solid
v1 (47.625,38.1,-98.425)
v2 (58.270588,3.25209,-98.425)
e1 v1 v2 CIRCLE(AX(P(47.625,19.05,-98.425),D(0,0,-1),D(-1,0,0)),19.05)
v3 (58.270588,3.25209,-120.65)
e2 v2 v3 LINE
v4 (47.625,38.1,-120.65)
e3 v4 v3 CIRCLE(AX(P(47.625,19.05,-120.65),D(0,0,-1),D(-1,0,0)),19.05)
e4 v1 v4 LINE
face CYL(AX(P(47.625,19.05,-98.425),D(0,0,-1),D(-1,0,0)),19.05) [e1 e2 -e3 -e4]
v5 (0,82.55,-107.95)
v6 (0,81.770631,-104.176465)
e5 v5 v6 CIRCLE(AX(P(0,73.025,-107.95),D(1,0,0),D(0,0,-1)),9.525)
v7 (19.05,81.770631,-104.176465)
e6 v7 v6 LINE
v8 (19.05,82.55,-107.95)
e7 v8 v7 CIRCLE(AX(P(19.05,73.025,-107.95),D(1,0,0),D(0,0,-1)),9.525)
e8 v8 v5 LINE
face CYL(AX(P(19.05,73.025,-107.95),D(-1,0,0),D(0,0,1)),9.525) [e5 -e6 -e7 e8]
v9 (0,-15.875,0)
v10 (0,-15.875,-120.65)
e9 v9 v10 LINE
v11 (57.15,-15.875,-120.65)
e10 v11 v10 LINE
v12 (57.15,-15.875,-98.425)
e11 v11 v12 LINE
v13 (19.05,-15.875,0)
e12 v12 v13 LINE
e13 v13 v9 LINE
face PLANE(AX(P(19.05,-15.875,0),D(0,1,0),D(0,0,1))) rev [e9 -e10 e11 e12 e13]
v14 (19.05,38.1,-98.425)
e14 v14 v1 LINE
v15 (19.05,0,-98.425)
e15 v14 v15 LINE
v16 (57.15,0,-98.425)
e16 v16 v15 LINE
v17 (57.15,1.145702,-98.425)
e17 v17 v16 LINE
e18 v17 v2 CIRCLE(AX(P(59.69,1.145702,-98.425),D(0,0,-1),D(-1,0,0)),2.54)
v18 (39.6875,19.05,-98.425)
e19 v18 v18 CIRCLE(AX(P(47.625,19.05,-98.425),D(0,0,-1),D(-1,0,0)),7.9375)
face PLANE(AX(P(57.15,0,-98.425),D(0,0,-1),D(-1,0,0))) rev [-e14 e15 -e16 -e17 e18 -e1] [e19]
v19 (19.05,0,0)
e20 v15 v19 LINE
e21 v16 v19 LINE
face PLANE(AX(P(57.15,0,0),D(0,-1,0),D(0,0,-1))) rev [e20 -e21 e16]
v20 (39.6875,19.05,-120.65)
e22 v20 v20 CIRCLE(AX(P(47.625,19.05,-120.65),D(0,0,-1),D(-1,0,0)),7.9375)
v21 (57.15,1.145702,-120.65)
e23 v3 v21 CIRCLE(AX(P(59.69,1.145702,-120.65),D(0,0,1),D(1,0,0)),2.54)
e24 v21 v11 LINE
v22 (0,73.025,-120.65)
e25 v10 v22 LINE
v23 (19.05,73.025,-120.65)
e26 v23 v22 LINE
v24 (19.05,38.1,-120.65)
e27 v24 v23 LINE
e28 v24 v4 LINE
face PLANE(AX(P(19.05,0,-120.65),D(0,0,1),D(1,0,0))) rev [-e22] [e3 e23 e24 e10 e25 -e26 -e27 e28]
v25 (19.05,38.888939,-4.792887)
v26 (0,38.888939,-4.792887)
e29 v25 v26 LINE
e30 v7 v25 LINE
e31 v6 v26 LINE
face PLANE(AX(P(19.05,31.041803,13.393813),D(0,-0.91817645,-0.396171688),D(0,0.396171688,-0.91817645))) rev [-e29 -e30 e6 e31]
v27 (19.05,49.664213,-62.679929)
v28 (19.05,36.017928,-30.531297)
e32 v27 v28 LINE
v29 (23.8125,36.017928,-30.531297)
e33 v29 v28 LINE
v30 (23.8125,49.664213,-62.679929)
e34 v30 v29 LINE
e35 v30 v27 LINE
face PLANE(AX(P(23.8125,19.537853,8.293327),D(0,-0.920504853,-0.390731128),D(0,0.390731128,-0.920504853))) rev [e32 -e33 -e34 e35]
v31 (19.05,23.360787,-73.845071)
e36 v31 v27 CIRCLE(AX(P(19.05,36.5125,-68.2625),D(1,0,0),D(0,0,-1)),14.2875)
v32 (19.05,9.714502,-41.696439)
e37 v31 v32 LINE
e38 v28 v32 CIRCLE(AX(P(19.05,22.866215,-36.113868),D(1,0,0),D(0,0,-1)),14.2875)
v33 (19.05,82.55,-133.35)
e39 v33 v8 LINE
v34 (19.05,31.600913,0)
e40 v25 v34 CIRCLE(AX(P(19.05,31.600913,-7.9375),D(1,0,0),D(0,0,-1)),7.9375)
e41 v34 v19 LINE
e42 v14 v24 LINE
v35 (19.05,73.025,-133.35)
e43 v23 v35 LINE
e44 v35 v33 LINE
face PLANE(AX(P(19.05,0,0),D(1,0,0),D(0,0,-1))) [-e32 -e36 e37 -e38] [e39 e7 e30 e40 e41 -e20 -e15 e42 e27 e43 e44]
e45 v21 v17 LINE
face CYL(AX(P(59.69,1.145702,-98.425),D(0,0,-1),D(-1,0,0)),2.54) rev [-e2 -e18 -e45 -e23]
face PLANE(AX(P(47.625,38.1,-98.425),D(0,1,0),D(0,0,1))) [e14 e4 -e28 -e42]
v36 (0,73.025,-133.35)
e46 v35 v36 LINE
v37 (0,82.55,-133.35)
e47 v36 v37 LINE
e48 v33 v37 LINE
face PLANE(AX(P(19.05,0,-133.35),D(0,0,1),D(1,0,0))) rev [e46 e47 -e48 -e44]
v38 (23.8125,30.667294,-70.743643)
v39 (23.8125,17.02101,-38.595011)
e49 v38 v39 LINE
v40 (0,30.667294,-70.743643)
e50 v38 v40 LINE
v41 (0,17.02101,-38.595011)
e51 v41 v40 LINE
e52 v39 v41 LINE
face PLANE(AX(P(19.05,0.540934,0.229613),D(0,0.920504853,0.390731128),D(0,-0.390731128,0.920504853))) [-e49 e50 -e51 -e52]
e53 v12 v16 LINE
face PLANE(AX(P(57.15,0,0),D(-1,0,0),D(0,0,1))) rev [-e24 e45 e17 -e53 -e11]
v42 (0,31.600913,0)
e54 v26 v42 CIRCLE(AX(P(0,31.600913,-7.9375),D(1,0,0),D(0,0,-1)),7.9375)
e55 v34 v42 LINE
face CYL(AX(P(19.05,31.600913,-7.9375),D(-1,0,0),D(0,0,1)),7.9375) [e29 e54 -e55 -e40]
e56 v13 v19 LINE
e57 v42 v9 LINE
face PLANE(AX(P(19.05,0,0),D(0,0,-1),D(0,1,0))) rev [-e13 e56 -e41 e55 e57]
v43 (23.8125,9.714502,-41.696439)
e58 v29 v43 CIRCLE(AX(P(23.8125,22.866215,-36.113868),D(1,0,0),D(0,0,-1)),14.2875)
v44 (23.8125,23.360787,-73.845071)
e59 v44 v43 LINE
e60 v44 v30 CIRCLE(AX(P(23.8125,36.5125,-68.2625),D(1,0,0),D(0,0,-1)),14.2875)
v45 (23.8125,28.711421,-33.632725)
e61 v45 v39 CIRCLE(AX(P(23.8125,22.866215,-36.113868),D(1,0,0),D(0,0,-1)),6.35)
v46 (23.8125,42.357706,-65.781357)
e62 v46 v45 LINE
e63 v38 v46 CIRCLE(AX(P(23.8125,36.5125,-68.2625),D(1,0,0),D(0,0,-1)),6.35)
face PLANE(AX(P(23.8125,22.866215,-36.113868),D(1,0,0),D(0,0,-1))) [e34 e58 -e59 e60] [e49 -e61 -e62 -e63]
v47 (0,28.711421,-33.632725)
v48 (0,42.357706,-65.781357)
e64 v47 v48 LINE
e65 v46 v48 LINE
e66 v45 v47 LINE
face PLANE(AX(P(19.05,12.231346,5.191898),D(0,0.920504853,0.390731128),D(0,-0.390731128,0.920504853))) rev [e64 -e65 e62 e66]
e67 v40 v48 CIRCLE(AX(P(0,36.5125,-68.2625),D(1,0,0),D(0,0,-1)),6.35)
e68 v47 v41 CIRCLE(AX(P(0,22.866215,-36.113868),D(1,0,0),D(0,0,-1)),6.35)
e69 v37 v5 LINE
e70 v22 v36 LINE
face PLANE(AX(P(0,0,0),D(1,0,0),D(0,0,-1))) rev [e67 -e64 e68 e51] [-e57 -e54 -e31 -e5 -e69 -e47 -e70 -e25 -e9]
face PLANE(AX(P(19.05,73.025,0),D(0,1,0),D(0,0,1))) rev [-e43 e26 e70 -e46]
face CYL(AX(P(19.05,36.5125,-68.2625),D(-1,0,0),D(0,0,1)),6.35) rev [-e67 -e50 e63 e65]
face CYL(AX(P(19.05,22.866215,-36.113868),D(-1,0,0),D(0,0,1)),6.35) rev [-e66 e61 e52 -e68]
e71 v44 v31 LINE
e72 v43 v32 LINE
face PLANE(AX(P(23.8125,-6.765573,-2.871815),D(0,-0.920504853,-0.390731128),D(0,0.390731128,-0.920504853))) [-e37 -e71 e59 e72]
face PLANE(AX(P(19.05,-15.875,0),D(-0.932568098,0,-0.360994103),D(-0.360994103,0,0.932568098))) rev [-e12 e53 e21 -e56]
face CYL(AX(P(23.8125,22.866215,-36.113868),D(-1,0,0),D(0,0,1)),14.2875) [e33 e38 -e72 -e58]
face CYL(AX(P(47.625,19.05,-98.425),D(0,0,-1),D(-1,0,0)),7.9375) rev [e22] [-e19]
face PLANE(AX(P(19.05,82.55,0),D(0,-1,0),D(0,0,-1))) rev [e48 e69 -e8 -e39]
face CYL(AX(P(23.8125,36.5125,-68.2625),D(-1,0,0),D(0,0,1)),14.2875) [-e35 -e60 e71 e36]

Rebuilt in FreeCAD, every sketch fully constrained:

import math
import FreeCAD as App
import Part
import Sketcher
from FreeCAD import Vector
Q = App.Units.Quantity


def edges_at(feature, points):
    """Names of the edges that pass closest to the given points."""
    edges = feature.Shape.Edges
    near = lambda p: min(range(len(edges)), key=lambda i: edges[i].distToShape(Part.Vertex(*p))[0])
    return sorted({f"Edge{near(p) + 1}" for p in points})

doc = App.newDocument("Part")
params = doc.addObject("Spreadsheet::Sheet", "Params")
for row, (alias, value) in enumerate([
    ("sketch1_height", "1 in"),
    ("sketch1_radius", "0.25 in"),
    ("sketch1_width", "3.5 in"),
    ("sketch1_height2", "0.5 in"),
    ("sketch1_radius2", "0.375 in"),
    ("pad1_length", "0.75 in"),
    ("sketch2_radius", "0.25 in"),
    ("sketch2_radius2", "0.5625 in"),
    ("sketch2_length", "1.375 in"),
    ("pad2_length", "0.1875 in"),
    ("sketch3_width", "0.25 in"),
    ("sketch3_height", "4.75 in"),
    ("sketch3_width2", "0.625 in"),
    ("pad3_length", "1.5 in"),
    ("sketch4_width", "1.5 in"),
    ("sketch4_height", "3.875 in"),
    ("sketch5_radius", "0.75 in"),
    ("sketch5_diameter", "0.625 in"),
    ("sketch5_width", "1.125 in"),
    ("pad4_length", "0.875 in"),
    ("fillet_radius", "0.1 in"),
], start=1):
    params.set(f"A{row}", alias)
    params.set(f"B{row}", "=" + value)
    params.setAlias(f"B{row}", alias)

body = doc.addObject("PartDesign::Body", "Body")

# Sketch on YZ plane
sketch1 = body.newObject("Sketcher::SketchObject", "Sketch")
sketch1.AttachmentSupport = (doc.getObject("YZ_Plane"), [""])
sketch1.MapMode = "FlatFace"
sketch1.addGeometry(Part.LineSegment(Vector(31.6, 0, 0), Vector(-15.9, 0, 0)), False)
sketch1.addGeometry(Part.LineSegment(Vector(-15.9, 0, 0), Vector(-15.9, -120.7, 0)), False)
sketch1.addGeometry(Part.LineSegment(Vector(-15.9, -120.7, 0), Vector(73, -120.7, 0)), False)
sketch1.addGeometry(Part.LineSegment(Vector(73, -120.7, 0), Vector(73, -133.3, 0)), False)
sketch1.addGeometry(Part.LineSegment(Vector(73, -133.3, 0), Vector(82.5, -133.3, 0)), False)
sketch1.addGeometry(Part.LineSegment(Vector(82.5, -133.3, 0), Vector(82.5, -108, 0)), False)
sketch1.addGeometry(Part.ArcOfCircle(Part.Circle(Vector(73, -108, 0), Vector(0, 0, 1), 9.5), math.radians(0), math.radians(23)), False)
sketch1.addGeometry(Part.LineSegment(Vector(81.8, -104.2, 0), Vector(38.9, -4.8, 0)), False)
sketch1.addGeometry(Part.ArcOfCircle(Part.Circle(Vector(31.6, -7.9, 0), Vector(0, 0, 1), 7.9), math.radians(23), math.radians(90)), False)
sketch1.addGeometry(Part.LineSegment(Vector(30.7, -70.7, 0), Vector(17, -38.6, 0)), False)
sketch1.addGeometry(Part.ArcOfCircle(Part.Circle(Vector(22.9, -36.1, 0), Vector(0, 0, 1), 6.3), math.radians(23), math.radians(203)), False)
sketch1.addGeometry(Part.LineSegment(Vector(28.7, -33.6, 0), Vector(42.4, -65.8, 0)), False)
sketch1.addGeometry(Part.ArcOfCircle(Part.Circle(Vector(36.5, -68.3, 0), Vector(0, 0, 1), 6.3), math.radians(-157), math.radians(23)), False)
sketch1.addConstraint(Sketcher.Constraint("Coincident", 0, 2, 1, 1))
sketch1.addConstraint(Sketcher.Constraint("Coincident", 1, 2, 2, 1))
sketch1.addConstraint(Sketcher.Constraint("Coincident", 2, 2, 3, 1))
sketch1.addConstraint(Sketcher.Constraint("Coincident", 3, 2, 4, 1))
sketch1.addConstraint(Sketcher.Constraint("Coincident", 4, 2, 5, 1))
sketch1.addConstraint(Sketcher.Constraint("Tangent", 5, 2, 6, 1))
sketch1.addConstraint(Sketcher.Constraint("Tangent", 6, 2, 7, 1))
sketch1.addConstraint(Sketcher.Constraint("Tangent", 7, 2, 8, 1))
sketch1.addConstraint(Sketcher.Constraint("Tangent", 8, 2, 0, 1))
sketch1.addConstraint(Sketcher.Constraint("Tangent", 9, 2, 10, 2))
sketch1.addConstraint(Sketcher.Constraint("Tangent", 10, 1, 11, 1))
sketch1.addConstraint(Sketcher.Constraint("Tangent", 11, 2, 12, 2))
sketch1.addConstraint(Sketcher.Constraint("Tangent", 12, 1, 9, 1))
sketch1.addConstraint(Sketcher.Constraint("Horizontal", 0))
sketch1.addConstraint(Sketcher.Constraint("Vertical", 1))
sketch1.addConstraint(Sketcher.Constraint("Horizontal", 2))
sketch1.addConstraint(Sketcher.Constraint("Vertical", 3))
sketch1.addConstraint(Sketcher.Constraint("Horizontal", 4))
sketch1.addConstraint(Sketcher.Constraint("Vertical", 5))
sketch1.addConstraint(Sketcher.Constraint("Equal", 10, 12))
sketch1.addConstraint(Sketcher.Constraint("PointOnObject", 0, 2, -1))
sketch1.addConstraint(Sketcher.Constraint("Vertical", 6, 3, 2, 2))
sketch1.addConstraint(Sketcher.Constraint("DistanceY", 5, 1, 5, 2, Q("1 in")))
sketch1.addConstraint(Sketcher.Constraint("Radius", 10, Q("0.25 in")))
sketch1.addConstraint(Sketcher.Constraint("DistanceX", 2, 1, 2, 2, Q("3.5 in")))
sketch1.addConstraint(Sketcher.Constraint("DistanceY", 3, 2, 3, 1, Q("0.5 in")))
sketch1.addConstraint(Sketcher.Constraint("Angle", 9, Q("113 deg")))
sketch1.addConstraint(Sketcher.Constraint("Radius", 6, Q("0.375 in")))
sketch1.addConstraint(Sketcher.Constraint("Radius", 8, Q("0.3125 in")))
sketch1.addConstraint(Sketcher.Constraint("DistanceY", 1, 2, 1, 1, Q("4.75 in")))
sketch1.addConstraint(Sketcher.Constraint("DistanceX", -1, 1, 4, 2, Q("3.25 in")))
sketch1.addConstraint(Sketcher.Constraint("Distance", 9, Q("1.375 in")))
sketch1.addConstraint(Sketcher.Constraint("DistanceX", -1, 1, 12, 3, Q("1.4375 in")))
sketch1.addConstraint(Sketcher.Constraint("DistanceY", 12, 3, -1, 1, Q("2.6875 in")))
sketch1.addConstraint(Sketcher.Constraint("DistanceX", 0, 2, 0, 1, 47.475913))
sketch1.setExpression("Constraints[22]", "Params.sketch1_height")
sketch1.setExpression("Constraints[23]", "Params.sketch1_radius")
sketch1.setExpression("Constraints[24]", "Params.sketch1_width")
sketch1.setExpression("Constraints[25]", "Params.sketch1_height2")
sketch1.setExpression("Constraints[27]", "Params.sketch1_radius2")
pad1 = body.newObject("PartDesign::Pad", "Pad")
pad1.Profile = sketch1
pad1.setExpression("Length", "Params.pad1_length")

# Sketch on YZ plane
sketch2 = body.newObject("Sketcher::SketchObject", "Sketch001")
sketch2.AttachmentSupport = (doc.getObject("YZ_Plane"), [""])
sketch2.MapMode = "FlatFace"
sketch2.AttachmentOffset = App.Placement(Vector(0, 0, 0.75 * 25.4), App.Rotation())
sketch2.addGeometry(Part.LineSegment(Vector(10, -42, 0), Vector(23, -74, 0)), False)
sketch2.addGeometry(Part.ArcOfCircle(Part.Circle(Vector(37, -68, 0), Vector(0, 0, 1), 14), math.radians(-157), math.radians(23)), False)
sketch2.addGeometry(Part.LineSegment(Vector(50, -63, 0), Vector(36, -31, 0)), False)
sketch2.addGeometry(Part.ArcOfCircle(Part.Circle(Vector(23, -36, 0), Vector(0, 0, 1), 14), math.radians(23), math.radians(203)), False)
sketch2.addGeometry(Part.ArcOfCircle(Part.Circle(Vector(23, -36, 0), Vector(0, 0, 1), 6), math.radians(23), math.radians(203)), False)
sketch2.addGeometry(Part.LineSegment(Vector(29, -34, 0), Vector(42, -66, 0)), False)
sketch2.addGeometry(Part.ArcOfCircle(Part.Circle(Vector(37, -68, 0), Vector(0, 0, 1), 6), math.radians(-157), math.radians(23)), False)
sketch2.addGeometry(Part.LineSegment(Vector(31, -71, 0), Vector(17, -39, 0)), False)
sketch2.addConstraint(Sketcher.Constraint("Tangent", 0, 2, 1, 1))
sketch2.addConstraint(Sketcher.Constraint("Tangent", 1, 2, 2, 1))
sketch2.addConstraint(Sketcher.Constraint("Tangent", 2, 2, 3, 1))
sketch2.addConstraint(Sketcher.Constraint("Tangent", 3, 2, 0, 1))
sketch2.addConstraint(Sketcher.Constraint("Tangent", 4, 1, 5, 1))
sketch2.addConstraint(Sketcher.Constraint("Tangent", 5, 2, 6, 2))
sketch2.addConstraint(Sketcher.Constraint("Tangent", 6, 1, 7, 1))
sketch2.addConstraint(Sketcher.Constraint("Tangent", 7, 2, 4, 2))
sketch2.addConstraint(Sketcher.Constraint("Coincident", 4, 3, 3, 3))
sketch2.addConstraint(Sketcher.Constraint("Coincident", 6, 3, 1, 3))
sketch2.addConstraint(Sketcher.Constraint("Equal", 1, 3))
sketch2.addConstraint(Sketcher.Constraint("Equal", 4, 6))
sketch2.addConstraint(Sketcher.Constraint("Radius", 4, Q("0.25 in")))
sketch2.addConstraint(Sketcher.Constraint("Angle", 0, Q("-67 deg")))
sketch2.addConstraint(Sketcher.Constraint("Radius", 1, Q("0.5625 in")))
sketch2.addConstraint(Sketcher.Constraint("Distance", 0, Q("1.375 in")))
sketch2.addConstraint(Sketcher.Constraint("DistanceX", -1, 1, 1, 3, Q("1.4375 in")))
sketch2.addConstraint(Sketcher.Constraint("DistanceY", 1, 3, -1, 1, Q("2.6875 in")))
sketch2.setExpression("Constraints[12]", "Params.sketch2_radius")
sketch2.setExpression("Constraints[14]", "Params.sketch2_radius2")
sketch2.setExpression("Constraints[15]", "Params.sketch2_length")
pad2 = body.newObject("PartDesign::Pad", "Pad001")
pad2.Profile = sketch2
pad2.setExpression("Length", "Params.pad2_length")

# Sketch on YZ plane
sketch3 = body.newObject("Sketcher::SketchObject", "Sketch002")
sketch3.AttachmentSupport = (doc.getObject("YZ_Plane"), [""])
sketch3.MapMode = "FlatFace"
sketch3.AttachmentOffset = App.Placement(Vector(0, 0, 0.75 * 25.4), App.Rotation())
sketch3.addGeometry(Part.LineSegment(Vector(0, -98, 0), Vector(0, 0, 0)), False)
sketch3.addGeometry(Part.LineSegment(Vector(0, 0, 0), Vector(-16, 0, 0)), False)
sketch3.addGeometry(Part.LineSegment(Vector(-16, 0, 0), Vector(-16, -121, 0)), False)
sketch3.addGeometry(Part.LineSegment(Vector(-16, -121, 0), Vector(6, -121, 0)), False)
sketch3.addGeometry(Part.LineSegment(Vector(6, -121, 0), Vector(6, -98, 0)), False)
sketch3.addGeometry(Part.LineSegment(Vector(6, -98, 0), Vector(0, -98, 0)), False)
sketch3.addConstraint(Sketcher.Constraint("Coincident", 0, 2, 1, 1))
sketch3.addConstraint(Sketcher.Constraint("Coincident", 1, 2, 2, 1))
sketch3.addConstraint(Sketcher.Constraint("Coincident", 2, 2, 3, 1))
sketch3.addConstraint(Sketcher.Constraint("Coincident", 3, 2, 4, 1))
sketch3.addConstraint(Sketcher.Constraint("Coincident", 4, 2, 5, 1))
sketch3.addConstraint(Sketcher.Constraint("Coincident", 5, 2, 0, 1))
sketch3.addConstraint(Sketcher.Constraint("Vertical", 0))
sketch3.addConstraint(Sketcher.Constraint("Horizontal", 1))
sketch3.addConstraint(Sketcher.Constraint("Vertical", 2))
sketch3.addConstraint(Sketcher.Constraint("Horizontal", 3))
sketch3.addConstraint(Sketcher.Constraint("Vertical", 4))
sketch3.addConstraint(Sketcher.Constraint("Horizontal", 5))
sketch3.addConstraint(Sketcher.Constraint("Coincident", 0, 2, -1, 1))
sketch3.addConstraint(Sketcher.Constraint("Equal", 3, 4))
sketch3.addConstraint(Sketcher.Constraint("DistanceX", 5, 2, 5, 1, Q("0.25 in")))
sketch3.addConstraint(Sketcher.Constraint("DistanceY", 2, 2, 2, 1, Q("4.75 in")))
sketch3.addConstraint(Sketcher.Constraint("DistanceX", 1, 2, 1, 1, Q("0.625 in")))
sketch3.setExpression("Constraints[14]", "Params.sketch3_width")
sketch3.setExpression("Constraints[15]", "Params.sketch3_height")
sketch3.setExpression("Constraints[16]", "Params.sketch3_width2")
pad3 = body.newObject("PartDesign::Pad", "Pad002")
pad3.Profile = sketch3
pad3.setExpression("Length", "Params.pad3_length")

# Sketch on XZ plane
sketch4 = body.newObject("Sketcher::SketchObject", "Sketch003")
sketch4.AttachmentSupport = (doc.getObject("XZ_Plane"), [""])
sketch4.MapMode = "FlatFace"
sketch4.addGeometry(Part.LineSegment(Vector(57, -98, 0), Vector(19, 0, 0)), False)
sketch4.addGeometry(Part.LineSegment(Vector(19, 0, 0), Vector(57, 0, 0)), False)
sketch4.addGeometry(Part.LineSegment(Vector(57, 0, 0), Vector(57, -98, 0)), False)
sketch4.addConstraint(Sketcher.Constraint("Coincident", 0, 2, 1, 1))
sketch4.addConstraint(Sketcher.Constraint("Coincident", 1, 2, 2, 1))
sketch4.addConstraint(Sketcher.Constraint("Coincident", 2, 2, 0, 1))
sketch4.addConstraint(Sketcher.Constraint("Horizontal", 1))
sketch4.addConstraint(Sketcher.Constraint("Vertical", 2))
sketch4.addConstraint(Sketcher.Constraint("PointOnObject", 0, 2, -1))
sketch4.addConstraint(Sketcher.Constraint("DistanceX", 1, 1, 1, 2, Q("1.5 in")))
sketch4.addConstraint(Sketcher.Constraint("DistanceY", 2, 2, 2, 1, Q("3.875 in")))
sketch4.addConstraint(Sketcher.Constraint("DistanceX", -1, 1, 0, 2, Q("0.75 in")))
sketch4.setExpression("Constraints[6]", "Params.sketch4_width")
sketch4.setExpression("Constraints[7]", "Params.sketch4_height")
pocket1 = body.newObject("PartDesign::Pocket", "Pocket")
pocket1.Profile = sketch4
pocket1.Type = "ThroughAll"
pocket1.Reversed = True

# Sketch on XY plane
sketch5 = body.newObject("Sketcher::SketchObject", "Sketch004")
sketch5.AttachmentSupport = (doc.getObject("XY_Plane"), [""])
sketch5.MapMode = "FlatFace"
sketch5.AttachmentOffset = App.Placement(Vector(0, 0, -4.75 * 25.4), App.Rotation())
sketch5.addGeometry(Part.LineSegment(Vector(48, 0, 0), Vector(19, 0, 0)), False)
sketch5.addGeometry(Part.LineSegment(Vector(19, 0, 0), Vector(19, 38, 0)), False)
sketch5.addGeometry(Part.LineSegment(Vector(19, 38, 0), Vector(48, 38, 0)), False)
sketch5.addGeometry(Part.ArcOfCircle(Part.Circle(Vector(48, 19, 0), Vector(0, 0, 1), 19), math.radians(-90), math.radians(90)), False)
sketch5.addGeometry(Part.Circle(Vector(48, 19, 0), Vector(0, 0, 1), 8), False)
sketch5.addConstraint(Sketcher.Constraint("Coincident", 0, 2, 1, 1))
sketch5.addConstraint(Sketcher.Constraint("Coincident", 1, 2, 2, 1))
sketch5.addConstraint(Sketcher.Constraint("Tangent", 2, 2, 3, 2))
sketch5.addConstraint(Sketcher.Constraint("Tangent", 3, 1, 0, 1))
sketch5.addConstraint(Sketcher.Constraint("Horizontal", 0))
sketch5.addConstraint(Sketcher.Constraint("Vertical", 1))
sketch5.addConstraint(Sketcher.Constraint("Horizontal", 2))
sketch5.addConstraint(Sketcher.Constraint("Coincident", 4, 3, 3, 3))
sketch5.addConstraint(Sketcher.Constraint("PointOnObject", 0, 2, -1))
sketch5.addConstraint(Sketcher.Constraint("Radius", 3, Q("0.75 in")))
sketch5.addConstraint(Sketcher.Constraint("Diameter", 4, Q("0.625 in")))
sketch5.addConstraint(Sketcher.Constraint("DistanceX", 0, 2, 0, 1, Q("1.125 in")))
sketch5.addConstraint(Sketcher.Constraint("DistanceX", -1, 1, 0, 2, Q("0.75 in")))
sketch5.setExpression("Constraints[9]", "Params.sketch5_radius")
sketch5.setExpression("Constraints[10]", "Params.sketch5_diameter")
sketch5.setExpression("Constraints[11]", "Params.sketch5_width")
pad4 = body.newObject("PartDesign::Pad", "Pad003")
pad4.Profile = sketch5
pad4.setExpression("Length", "Params.pad4_length")
doc.recompute()

fillet = body.newObject("PartDesign::Fillet", "Fillet")
fillet.Base = (pad4, edges_at(pad4, [(57.15, 2.552, -109.537)]))
fillet.setExpression("Radius", "Params.fillet_radius")

doc.recompute()
